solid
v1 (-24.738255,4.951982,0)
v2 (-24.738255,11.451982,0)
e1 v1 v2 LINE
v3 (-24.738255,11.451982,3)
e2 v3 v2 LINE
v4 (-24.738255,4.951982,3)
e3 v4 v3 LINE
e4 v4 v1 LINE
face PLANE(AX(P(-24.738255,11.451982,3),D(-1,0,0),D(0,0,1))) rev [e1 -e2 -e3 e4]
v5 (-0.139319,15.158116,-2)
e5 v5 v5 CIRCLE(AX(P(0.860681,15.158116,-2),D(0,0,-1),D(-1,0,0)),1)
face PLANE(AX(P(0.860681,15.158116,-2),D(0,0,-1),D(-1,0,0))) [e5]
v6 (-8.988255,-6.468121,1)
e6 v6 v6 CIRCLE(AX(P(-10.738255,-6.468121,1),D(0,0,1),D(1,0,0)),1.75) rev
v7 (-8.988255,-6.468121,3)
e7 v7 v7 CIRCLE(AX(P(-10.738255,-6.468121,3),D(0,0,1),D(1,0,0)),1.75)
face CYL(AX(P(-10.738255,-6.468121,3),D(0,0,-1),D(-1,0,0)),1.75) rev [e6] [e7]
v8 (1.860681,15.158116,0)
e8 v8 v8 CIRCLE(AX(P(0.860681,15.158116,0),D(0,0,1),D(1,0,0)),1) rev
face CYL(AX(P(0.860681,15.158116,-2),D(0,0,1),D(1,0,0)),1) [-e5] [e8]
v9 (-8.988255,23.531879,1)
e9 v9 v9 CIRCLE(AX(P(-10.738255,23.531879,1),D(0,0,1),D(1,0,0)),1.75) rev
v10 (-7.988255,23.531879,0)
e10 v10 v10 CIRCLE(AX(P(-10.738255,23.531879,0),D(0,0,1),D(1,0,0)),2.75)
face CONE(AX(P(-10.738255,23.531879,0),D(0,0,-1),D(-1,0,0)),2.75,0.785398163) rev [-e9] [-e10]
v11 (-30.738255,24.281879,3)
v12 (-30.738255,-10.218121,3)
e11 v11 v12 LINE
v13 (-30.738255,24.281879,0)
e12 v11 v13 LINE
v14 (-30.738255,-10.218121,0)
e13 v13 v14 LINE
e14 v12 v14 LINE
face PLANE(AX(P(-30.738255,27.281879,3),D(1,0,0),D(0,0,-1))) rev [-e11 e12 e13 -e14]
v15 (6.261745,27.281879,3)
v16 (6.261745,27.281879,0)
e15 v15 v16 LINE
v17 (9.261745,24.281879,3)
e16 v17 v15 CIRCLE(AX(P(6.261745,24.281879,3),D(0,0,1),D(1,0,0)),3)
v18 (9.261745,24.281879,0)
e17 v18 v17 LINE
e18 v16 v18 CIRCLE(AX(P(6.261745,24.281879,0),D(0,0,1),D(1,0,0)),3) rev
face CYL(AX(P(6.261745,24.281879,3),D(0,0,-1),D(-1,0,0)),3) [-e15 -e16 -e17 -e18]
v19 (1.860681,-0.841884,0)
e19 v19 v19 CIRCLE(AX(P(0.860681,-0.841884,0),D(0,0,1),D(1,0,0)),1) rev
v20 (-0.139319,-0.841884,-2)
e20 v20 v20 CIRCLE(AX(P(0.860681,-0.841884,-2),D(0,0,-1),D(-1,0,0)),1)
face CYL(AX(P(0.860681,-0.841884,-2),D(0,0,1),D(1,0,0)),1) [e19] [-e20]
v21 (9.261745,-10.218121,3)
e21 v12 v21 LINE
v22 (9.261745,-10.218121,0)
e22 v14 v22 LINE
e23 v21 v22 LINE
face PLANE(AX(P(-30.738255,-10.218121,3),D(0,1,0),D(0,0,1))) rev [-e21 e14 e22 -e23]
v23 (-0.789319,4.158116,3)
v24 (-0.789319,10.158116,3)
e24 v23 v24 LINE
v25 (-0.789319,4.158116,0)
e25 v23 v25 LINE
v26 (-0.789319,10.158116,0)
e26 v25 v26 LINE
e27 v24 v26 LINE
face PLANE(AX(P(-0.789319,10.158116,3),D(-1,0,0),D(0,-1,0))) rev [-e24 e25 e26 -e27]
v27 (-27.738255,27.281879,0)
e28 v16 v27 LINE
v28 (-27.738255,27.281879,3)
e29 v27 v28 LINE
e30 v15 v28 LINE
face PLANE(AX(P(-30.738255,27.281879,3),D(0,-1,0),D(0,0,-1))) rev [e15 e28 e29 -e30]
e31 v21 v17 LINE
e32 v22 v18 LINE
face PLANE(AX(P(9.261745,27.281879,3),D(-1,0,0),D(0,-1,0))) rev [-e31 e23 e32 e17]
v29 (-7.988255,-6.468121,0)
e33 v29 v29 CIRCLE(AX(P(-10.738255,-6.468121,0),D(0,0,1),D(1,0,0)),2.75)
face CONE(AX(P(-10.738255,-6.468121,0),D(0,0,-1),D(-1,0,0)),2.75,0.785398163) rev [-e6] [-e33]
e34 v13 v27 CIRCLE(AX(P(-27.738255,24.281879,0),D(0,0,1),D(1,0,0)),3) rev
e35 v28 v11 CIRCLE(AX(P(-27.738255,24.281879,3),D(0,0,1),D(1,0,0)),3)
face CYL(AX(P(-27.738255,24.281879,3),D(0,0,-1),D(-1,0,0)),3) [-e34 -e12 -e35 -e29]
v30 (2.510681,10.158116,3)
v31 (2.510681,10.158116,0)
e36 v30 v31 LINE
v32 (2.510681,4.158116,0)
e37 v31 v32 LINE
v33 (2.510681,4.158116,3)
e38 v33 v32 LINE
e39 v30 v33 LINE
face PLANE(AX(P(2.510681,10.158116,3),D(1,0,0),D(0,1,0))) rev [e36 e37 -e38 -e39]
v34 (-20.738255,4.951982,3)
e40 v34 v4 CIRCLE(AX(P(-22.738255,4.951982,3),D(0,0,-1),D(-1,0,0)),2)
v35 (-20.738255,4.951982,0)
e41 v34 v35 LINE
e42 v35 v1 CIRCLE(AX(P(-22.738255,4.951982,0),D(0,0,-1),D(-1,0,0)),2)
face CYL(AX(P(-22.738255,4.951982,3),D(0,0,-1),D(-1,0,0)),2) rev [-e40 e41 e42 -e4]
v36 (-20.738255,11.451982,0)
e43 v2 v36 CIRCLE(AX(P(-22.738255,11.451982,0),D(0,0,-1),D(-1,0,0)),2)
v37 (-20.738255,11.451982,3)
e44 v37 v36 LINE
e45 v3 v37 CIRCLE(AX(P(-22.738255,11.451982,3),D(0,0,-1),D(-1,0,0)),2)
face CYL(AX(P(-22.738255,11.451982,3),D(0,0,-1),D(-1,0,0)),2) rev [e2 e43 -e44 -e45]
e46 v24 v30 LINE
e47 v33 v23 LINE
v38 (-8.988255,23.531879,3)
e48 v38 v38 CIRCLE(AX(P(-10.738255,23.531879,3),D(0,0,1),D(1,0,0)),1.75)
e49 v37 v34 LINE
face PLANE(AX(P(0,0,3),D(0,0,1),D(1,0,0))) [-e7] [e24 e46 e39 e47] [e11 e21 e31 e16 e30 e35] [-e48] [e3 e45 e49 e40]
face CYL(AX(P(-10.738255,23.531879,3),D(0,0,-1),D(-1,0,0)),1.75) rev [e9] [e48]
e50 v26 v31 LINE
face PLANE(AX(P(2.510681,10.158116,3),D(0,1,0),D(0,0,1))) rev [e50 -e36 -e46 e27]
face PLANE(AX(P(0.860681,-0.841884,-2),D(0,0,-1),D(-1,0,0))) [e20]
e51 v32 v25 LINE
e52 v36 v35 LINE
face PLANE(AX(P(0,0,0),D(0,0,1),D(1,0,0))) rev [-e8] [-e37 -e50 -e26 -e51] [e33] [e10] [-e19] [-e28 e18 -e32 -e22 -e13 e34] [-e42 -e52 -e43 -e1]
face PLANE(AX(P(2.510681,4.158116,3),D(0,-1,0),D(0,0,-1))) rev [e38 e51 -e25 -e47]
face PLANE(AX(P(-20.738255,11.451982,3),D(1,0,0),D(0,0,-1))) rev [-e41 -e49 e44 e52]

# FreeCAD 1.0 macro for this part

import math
import FreeCAD as App
import Part
import Sketcher

V = App.Vector


def edges_at(feature, points):
    """Names of the edges that pass closest to the given points."""
    edges = feature.Shape.Edges
    near = lambda p: min(range(len(edges)), key=lambda i: edges[i].distToShape(Part.Vertex(*p))[0])
    return sorted({f"Edge{near(p) + 1}" for p in points})


def add_polygon(sketch, points):
    """Adds a closed chain of lines whose ends are joined by coincident constraints."""
    first, n = sketch.GeometryCount, len(points)
    for a, b in zip(points, points[1:] + points[:1]):
        sketch.addGeometry(Part.LineSegment(App.Vector(*a, 0), App.Vector(*b, 0)), False)
    for i in range(n):
        sketch.addConstraint(Sketcher.Constraint("Coincident", first + i, 2, first + (i + 1) % n, 1))

doc = App.newDocument("Part")
body = doc.addObject("PartDesign::Body", "Body")

sketch1 = body.newObject("Sketcher::SketchObject", "Sketch")
sketch1.AttachmentSupport = (doc.getObject("XY_Plane"), [""])
sketch1.MapMode = "FlatFace"
add_polygon(sketch1, [(-30.738255, 27.281879), (-30.738255, -10.218121), (9.261745, -10.218121), (9.261745, 27.281879)])
sketch1.addGeometry(Part.Circle(V(-10.738255, -6.468121, 0), V(0, 0, 1), 1.75), False)
sketch1.addGeometry(Part.Circle(V(-10.738255, 23.531879, 0), V(0, 0, 1), 1.75), False)
sketch1.addConstraint(Sketcher.Constraint("Vertical", 0))
sketch1.addConstraint(Sketcher.Constraint("Horizontal", 1))
sketch1.addConstraint(Sketcher.Constraint("Vertical", 2))
sketch1.addConstraint(Sketcher.Constraint("Horizontal", 3))
sketch1.addConstraint(Sketcher.Constraint("Equal", 4, 5))
sketch1.addConstraint(Sketcher.Constraint("Vertical", 4, 3, 5, 3))
sketch1.addConstraint(Sketcher.Constraint("Diameter", 4, 3.5))
sketch1.addConstraint(Sketcher.Constraint("DistanceX", 1, 1, 1, 2, 40.0))
sketch1.addConstraint(Sketcher.Constraint("DistanceY", 0, 2, 0, 1, 37.5))
sketch1.addConstraint(Sketcher.Constraint("DistanceY", 4, 3, 5, 3, 30.0))
sketch1.addConstraint(Sketcher.Constraint("DistanceX", 0, 2, 4, 3, 20.0))
sketch1.addConstraint(Sketcher.Constraint("DistanceY", 0, 2, 4, 3, 3.75))
sketch1.addConstraint(Sketcher.Constraint("DistanceY", 4, 3, -1, 1, 6.468121))
sketch1.addConstraint(Sketcher.Constraint("DistanceX", 4, 3, -1, 1, 10.738255))
pad1 = body.newObject("PartDesign::Pad", "Pad")
pad1.Profile = sketch1
pad1.Length = 3
doc.recompute()

chamfer = body.newObject("PartDesign::Chamfer", "Chamfer")
chamfer.Base = (pad1, edges_at(pad1, [(-12.488, -6.468, 0), (-12.488, 23.532, 0)]))
chamfer.Size = 1
doc.recompute()

fillet = body.newObject("PartDesign::Fillet", "Fillet")
fillet.Base = (chamfer, edges_at(chamfer, [(-30.738, 27.282, 1.5), (9.262, 27.282, 1.5)]))
fillet.Radius = 3

sketch2 = body.newObject("Sketcher::SketchObject", "Sketch001")
sketch2.AttachmentSupport = (doc.getObject("XY_Plane"), [""])
sketch2.MapMode = "FlatFace"
sketch2.addGeometry(Part.LineSegment(V(-24.738255, 4.951982, 0), V(-24.738255, 11.451982, 0)), False)
sketch2.addGeometry(Part.ArcOfCircle(Part.Circle(V(-22.738255, 11.451982, 0), V(0, 0, 1), 2), math.radians(0), math.radians(180)), False)
sketch2.addGeometry(Part.LineSegment(V(-20.738255, 11.451982, 0), V(-20.738255, 4.951982, 0)), False)
sketch2.addGeometry(Part.ArcOfCircle(Part.Circle(V(-22.738255, 4.951982, 0), V(0, 0, 1), 2), math.radians(180), math.radians(360)), False)
add_polygon(sketch2, [(2.510681, 10.158116), (2.510681, 4.158116), (-0.789319, 4.158116), (-0.789319, 10.158116)])
sketch2.addConstraint(Sketcher.Constraint("Tangent", 0, 2, 1, 2))
sketch2.addConstraint(Sketcher.Constraint("Tangent", 1, 1, 2, 1))
sketch2.addConstraint(Sketcher.Constraint("Tangent", 2, 2, 3, 2))
sketch2.addConstraint(Sketcher.Constraint("Tangent", 3, 1, 0, 1))
sketch2.addConstraint(Sketcher.Constraint("Vertical", 0))
sketch2.addConstraint(Sketcher.Constraint("Vertical", 2))
sketch2.addConstraint(Sketcher.Constraint("Vertical", 4))
sketch2.addConstraint(Sketcher.Constraint("Horizontal", 5))
sketch2.addConstraint(Sketcher.Constraint("Vertical", 6))
sketch2.addConstraint(Sketcher.Constraint("Horizontal", 7))
sketch2.addConstraint(Sketcher.Constraint("Radius", 1, 2.0))
sketch2.addConstraint(Sketcher.Constraint("DistanceY", 4, 2, 4, 1, 6.0))
sketch2.addConstraint(Sketcher.Constraint("DistanceX", 5, 2, 5, 1, 3.3))
sketch2.addConstraint(Sketcher.Constraint("DistanceY", 0, 1, 0, 2, 6.5))
sketch2.addConstraint(Sketcher.Constraint("DistanceY", -1, 1, 1, 3, 11.451982))
sketch2.addConstraint(Sketcher.Constraint("DistanceX", -1, 1, 4, 2, 2.510681))
sketch2.addConstraint(Sketcher.Constraint("DistanceX", 1, 3, -1, 1, 22.738255))
sketch2.addConstraint(Sketcher.Constraint("DistanceY", -1, 1, 4, 2, 4.158116))
pocket1 = body.newObject("PartDesign::Pocket", "Pocket")
pocket1.Profile = sketch2
pocket1.Type = "ThroughAll"
pocket1.Reversed = True

sketch3 = body.newObject("Sketcher::SketchObject", "Sketch002")
sketch3.AttachmentSupport = (doc.getObject("XY_Plane"), [""])
sketch3.MapMode = "FlatFace"
sketch3.addGeometry(Part.Circle(V(0.860681, 15.158116, 0), V(0, 0, 1), 1), False)
sketch3.addGeometry(Part.Circle(V(0.860681, -0.841884, 0), V(0, 0, 1), 1), False)
sketch3.addConstraint(Sketcher.Constraint("Equal", 0, 1))
sketch3.addConstraint(Sketcher.Constraint("Vertical", 0, 3, 1, 3))
sketch3.addConstraint(Sketcher.Constraint("Diameter", 0, 2.0))
sketch3.addConstraint(Sketcher.Constraint("DistanceY", 1, 3, 0, 3, 16.0))
sketch3.addConstraint(Sketcher.Constraint("DistanceX", -1, 1, 0, 3, 0.860681))
sketch3.addConstraint(Sketcher.Constraint("DistanceY", -1, 1, 0, 3, 15.158116))
pad2 = body.newObject("PartDesign::Pad", "Pad001")
pad2.Profile = sketch3
pad2.Length = 2
pad2.Reversed = True

doc.recompute()
